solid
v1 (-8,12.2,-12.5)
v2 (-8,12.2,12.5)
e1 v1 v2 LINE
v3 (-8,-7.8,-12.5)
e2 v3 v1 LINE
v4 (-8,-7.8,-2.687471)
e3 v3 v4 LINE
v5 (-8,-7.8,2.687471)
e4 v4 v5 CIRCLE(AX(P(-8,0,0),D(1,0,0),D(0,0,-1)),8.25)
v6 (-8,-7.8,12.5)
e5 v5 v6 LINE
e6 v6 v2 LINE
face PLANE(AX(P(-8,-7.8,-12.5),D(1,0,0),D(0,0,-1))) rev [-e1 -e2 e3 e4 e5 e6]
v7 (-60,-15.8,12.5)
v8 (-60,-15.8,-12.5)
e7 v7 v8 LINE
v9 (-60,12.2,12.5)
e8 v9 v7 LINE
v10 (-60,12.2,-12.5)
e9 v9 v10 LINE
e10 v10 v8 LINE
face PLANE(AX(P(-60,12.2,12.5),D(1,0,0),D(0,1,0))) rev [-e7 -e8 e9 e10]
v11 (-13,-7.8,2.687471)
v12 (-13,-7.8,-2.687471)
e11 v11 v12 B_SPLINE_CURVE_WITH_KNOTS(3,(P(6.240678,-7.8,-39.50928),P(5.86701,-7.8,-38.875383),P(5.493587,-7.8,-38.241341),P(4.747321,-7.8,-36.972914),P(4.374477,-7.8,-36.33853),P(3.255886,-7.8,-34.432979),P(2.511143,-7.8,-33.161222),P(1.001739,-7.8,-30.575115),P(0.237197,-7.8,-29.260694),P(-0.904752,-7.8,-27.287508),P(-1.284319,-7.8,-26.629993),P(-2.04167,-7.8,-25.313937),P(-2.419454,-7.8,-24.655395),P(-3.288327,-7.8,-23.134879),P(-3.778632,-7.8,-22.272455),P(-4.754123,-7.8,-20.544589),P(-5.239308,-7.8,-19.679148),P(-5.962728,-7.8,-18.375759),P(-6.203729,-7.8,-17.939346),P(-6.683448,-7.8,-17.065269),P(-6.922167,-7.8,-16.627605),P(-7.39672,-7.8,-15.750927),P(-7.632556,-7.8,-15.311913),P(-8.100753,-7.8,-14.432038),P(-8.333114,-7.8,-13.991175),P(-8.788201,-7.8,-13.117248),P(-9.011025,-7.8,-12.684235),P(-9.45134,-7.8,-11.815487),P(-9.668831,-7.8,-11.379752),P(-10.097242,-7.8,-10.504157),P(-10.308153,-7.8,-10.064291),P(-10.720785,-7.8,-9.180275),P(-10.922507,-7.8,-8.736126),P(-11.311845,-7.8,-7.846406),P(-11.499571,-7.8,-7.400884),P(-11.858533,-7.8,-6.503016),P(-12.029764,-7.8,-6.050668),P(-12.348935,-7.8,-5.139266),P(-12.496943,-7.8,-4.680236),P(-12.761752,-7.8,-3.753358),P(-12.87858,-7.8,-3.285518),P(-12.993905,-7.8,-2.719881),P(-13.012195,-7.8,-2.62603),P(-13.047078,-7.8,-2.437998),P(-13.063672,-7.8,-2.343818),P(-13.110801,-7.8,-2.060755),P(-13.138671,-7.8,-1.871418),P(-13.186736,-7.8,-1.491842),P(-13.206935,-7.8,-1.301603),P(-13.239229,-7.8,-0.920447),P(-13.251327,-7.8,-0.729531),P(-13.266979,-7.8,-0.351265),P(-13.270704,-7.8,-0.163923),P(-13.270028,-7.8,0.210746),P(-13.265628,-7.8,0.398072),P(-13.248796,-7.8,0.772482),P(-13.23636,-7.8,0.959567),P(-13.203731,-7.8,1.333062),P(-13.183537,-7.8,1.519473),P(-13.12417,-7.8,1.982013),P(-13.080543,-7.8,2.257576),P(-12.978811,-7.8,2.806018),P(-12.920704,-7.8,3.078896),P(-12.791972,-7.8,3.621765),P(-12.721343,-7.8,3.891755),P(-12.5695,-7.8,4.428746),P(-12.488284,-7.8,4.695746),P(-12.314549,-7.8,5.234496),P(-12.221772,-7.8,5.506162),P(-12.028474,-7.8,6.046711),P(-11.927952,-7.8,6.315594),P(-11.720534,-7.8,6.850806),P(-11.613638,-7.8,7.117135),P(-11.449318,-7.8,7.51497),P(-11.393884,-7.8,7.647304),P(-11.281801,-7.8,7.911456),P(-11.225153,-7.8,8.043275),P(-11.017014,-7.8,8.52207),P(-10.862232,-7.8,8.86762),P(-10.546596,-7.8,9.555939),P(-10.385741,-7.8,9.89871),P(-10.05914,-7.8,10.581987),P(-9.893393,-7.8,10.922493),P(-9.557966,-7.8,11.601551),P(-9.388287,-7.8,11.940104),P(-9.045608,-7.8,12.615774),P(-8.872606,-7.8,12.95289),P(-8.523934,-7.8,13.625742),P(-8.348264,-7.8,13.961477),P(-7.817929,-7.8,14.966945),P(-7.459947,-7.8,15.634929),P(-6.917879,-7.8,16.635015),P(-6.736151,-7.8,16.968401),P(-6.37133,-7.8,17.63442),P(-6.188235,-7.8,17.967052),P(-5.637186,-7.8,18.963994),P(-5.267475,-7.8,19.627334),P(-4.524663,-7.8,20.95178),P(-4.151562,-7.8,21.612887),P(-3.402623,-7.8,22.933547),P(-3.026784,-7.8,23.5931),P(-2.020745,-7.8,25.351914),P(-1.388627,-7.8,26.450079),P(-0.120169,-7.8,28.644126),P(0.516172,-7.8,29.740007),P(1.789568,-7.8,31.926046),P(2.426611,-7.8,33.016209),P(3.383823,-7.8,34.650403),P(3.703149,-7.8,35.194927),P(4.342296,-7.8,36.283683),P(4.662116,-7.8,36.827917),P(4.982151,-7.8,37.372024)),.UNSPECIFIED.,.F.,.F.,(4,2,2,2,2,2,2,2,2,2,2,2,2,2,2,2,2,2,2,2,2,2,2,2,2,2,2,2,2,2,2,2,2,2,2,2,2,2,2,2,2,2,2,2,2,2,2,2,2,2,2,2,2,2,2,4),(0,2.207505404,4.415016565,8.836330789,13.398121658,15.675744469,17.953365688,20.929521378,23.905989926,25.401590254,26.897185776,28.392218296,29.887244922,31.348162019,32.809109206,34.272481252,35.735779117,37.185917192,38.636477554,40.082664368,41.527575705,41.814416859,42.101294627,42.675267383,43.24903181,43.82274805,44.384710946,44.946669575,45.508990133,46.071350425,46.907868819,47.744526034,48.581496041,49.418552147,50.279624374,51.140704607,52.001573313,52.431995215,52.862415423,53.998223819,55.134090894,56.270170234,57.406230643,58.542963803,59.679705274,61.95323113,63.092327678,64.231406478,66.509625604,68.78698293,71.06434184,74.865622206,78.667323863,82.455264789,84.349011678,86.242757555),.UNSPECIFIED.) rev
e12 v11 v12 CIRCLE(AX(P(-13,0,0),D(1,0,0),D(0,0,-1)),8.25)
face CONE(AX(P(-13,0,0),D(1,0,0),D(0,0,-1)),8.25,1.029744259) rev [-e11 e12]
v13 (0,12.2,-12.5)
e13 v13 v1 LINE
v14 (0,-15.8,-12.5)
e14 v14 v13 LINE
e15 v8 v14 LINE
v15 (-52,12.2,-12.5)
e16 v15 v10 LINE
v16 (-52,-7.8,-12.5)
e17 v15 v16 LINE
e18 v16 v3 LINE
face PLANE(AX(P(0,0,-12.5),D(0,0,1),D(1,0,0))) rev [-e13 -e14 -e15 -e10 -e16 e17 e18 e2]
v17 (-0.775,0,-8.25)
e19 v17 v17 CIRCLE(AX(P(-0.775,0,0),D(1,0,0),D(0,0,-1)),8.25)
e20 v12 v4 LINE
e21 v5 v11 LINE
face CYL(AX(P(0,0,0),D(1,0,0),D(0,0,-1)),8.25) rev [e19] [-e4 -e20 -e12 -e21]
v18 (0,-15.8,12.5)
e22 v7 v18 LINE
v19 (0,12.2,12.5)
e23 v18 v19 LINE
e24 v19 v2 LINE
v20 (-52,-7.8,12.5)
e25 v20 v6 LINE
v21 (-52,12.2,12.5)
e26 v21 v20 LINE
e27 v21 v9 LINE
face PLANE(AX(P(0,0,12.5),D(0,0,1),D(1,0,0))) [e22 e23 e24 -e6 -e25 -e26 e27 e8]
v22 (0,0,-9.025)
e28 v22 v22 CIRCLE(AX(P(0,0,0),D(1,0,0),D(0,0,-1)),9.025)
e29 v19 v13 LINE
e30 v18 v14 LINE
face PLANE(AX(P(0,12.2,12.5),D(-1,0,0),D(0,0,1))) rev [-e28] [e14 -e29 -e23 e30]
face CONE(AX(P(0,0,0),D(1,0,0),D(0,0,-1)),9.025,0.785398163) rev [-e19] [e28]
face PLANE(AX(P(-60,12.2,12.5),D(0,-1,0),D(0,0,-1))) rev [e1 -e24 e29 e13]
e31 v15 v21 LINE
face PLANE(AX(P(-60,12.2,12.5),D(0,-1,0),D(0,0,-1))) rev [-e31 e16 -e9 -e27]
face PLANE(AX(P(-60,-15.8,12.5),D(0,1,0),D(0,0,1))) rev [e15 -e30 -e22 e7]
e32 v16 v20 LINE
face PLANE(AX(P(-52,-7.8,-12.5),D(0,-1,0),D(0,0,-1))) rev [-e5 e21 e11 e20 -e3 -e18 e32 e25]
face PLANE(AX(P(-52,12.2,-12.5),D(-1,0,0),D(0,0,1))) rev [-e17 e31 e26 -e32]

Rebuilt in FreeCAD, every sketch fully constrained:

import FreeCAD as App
import Part
import Sketcher

V = App.Vector
Q = App.Units.Quantity

doc = App.newDocument("Part")
body = doc.addObject("PartDesign::Body", "Body")

sketch1 = body.newObject("Sketcher::SketchObject", "Sketch")
sketch1.AttachmentSupport = (doc.getObject("XY_Plane"), [""])
sketch1.MapMode = "FlatFace"
sketch1.addGeometry([
    Part.LineSegment(V(-60, 12, 0), V(-60, -16, 0)),
    Part.LineSegment(V(-60, -16, 0), V(0, -16, 0)),
    Part.LineSegment(V(0, -16, 0), V(0, 12, 0)),
    Part.LineSegment(V(0, 12, 0), V(-60, 12, 0)),
], False)
sketch1.addConstraint([
    Sketcher.Constraint("Coincident", 0, 2, 1, 1),
    Sketcher.Constraint("Coincident", 1, 2, 2, 1),
    Sketcher.Constraint("Coincident", 2, 2, 3, 1),
    Sketcher.Constraint("Coincident", 3, 2, 0, 1),
    Sketcher.Constraint("Vertical", 0),
    Sketcher.Constraint("Horizontal", 1),
    Sketcher.Constraint("Vertical", 2),
    Sketcher.Constraint("Horizontal", 3),
    Sketcher.Constraint("PointOnObject", 1, 2, -2),
    Sketcher.Constraint("DistanceX", 1, 1, 1, 2, Q("60 mm")),
    Sketcher.Constraint("DistanceY", 0, 2, 0, 1, Q("28 mm")),
    Sketcher.Constraint("DistanceY", 0, 2, -1, 1, Q("15.8 mm")),
])
pad1 = body.newObject("PartDesign::Pad", "Pad")
pad1.Profile = sketch1
pad1.Length = 25
pad1.Midplane = True

sketch2 = body.newObject("Sketcher::SketchObject", "Sketch001")
sketch2.AttachmentSupport = (doc.getObject("XY_Plane"), [""])
sketch2.MapMode = "FlatFace"
sketch2.addGeometry([
    Part.LineSegment(V(-52, 12, 0), V(-52, -8, 0)),
    Part.LineSegment(V(-52, -8, 0), V(-8, -8, 0)),
    Part.LineSegment(V(-8, -8, 0), V(-8, 12, 0)),
    Part.LineSegment(V(-8, 12, 0), V(-52, 12, 0)),
], False)
sketch2.addConstraint([
    Sketcher.Constraint("Coincident", 0, 2, 1, 1),
    Sketcher.Constraint("Coincident", 1, 2, 2, 1),
    Sketcher.Constraint("Coincident", 2, 2, 3, 1),
    Sketcher.Constraint("Coincident", 3, 2, 0, 1),
    Sketcher.Constraint("Vertical", 0),
    Sketcher.Constraint("Horizontal", 1),
    Sketcher.Constraint("Vertical", 2),
    Sketcher.Constraint("Horizontal", 3),
    Sketcher.Constraint("DistanceX", 1, 1, 1, 2, Q("44 mm")),
    Sketcher.Constraint("DistanceY", 0, 2, 0, 1, Q("20 mm")),
    Sketcher.Constraint("DistanceX", 0, 2, -1, 1, Q("52 mm")),
    Sketcher.Constraint("DistanceY", 0, 2, -1, 1, Q("7.8 mm")),
])
pocket1 = body.newObject("PartDesign::Pocket", "Pocket")
pocket1.Profile = sketch2
pocket1.Type = "ThroughAll"
pocket1.Midplane = True

sketch3 = body.newObject("Sketcher::SketchObject", "Sketch002")
sketch3.AttachmentSupport = (doc.getObject("YZ_Plane"), [""])
sketch3.MapMode = "FlatFace"
sketch3.addGeometry(Part.Circle(V(0, 0, 0), V(0, 0, 1), 8), False)
sketch3.addConstraint([
    Sketcher.Constraint("Coincident", 0, 3, -1, 1),
    Sketcher.Constraint("Diameter", 0, Q("16.5 mm")),
])
doc.recompute()
hole = body.newObject("PartDesign::Hole", "Hole")
hole.Profile = sketch3
hole.ThreadType = "None"
hole.Diameter = 16.5
hole.DepthType = "Dimension"
hole.Depth = 13
hole.DrillPoint = "Angled"
hole.DrillPointAngle = 118
hole.HoleCutType = "Countersink"
hole.HoleCutDiameter = 18.05
hole.HoleCutCountersinkAngle = 90

doc.recompute()
